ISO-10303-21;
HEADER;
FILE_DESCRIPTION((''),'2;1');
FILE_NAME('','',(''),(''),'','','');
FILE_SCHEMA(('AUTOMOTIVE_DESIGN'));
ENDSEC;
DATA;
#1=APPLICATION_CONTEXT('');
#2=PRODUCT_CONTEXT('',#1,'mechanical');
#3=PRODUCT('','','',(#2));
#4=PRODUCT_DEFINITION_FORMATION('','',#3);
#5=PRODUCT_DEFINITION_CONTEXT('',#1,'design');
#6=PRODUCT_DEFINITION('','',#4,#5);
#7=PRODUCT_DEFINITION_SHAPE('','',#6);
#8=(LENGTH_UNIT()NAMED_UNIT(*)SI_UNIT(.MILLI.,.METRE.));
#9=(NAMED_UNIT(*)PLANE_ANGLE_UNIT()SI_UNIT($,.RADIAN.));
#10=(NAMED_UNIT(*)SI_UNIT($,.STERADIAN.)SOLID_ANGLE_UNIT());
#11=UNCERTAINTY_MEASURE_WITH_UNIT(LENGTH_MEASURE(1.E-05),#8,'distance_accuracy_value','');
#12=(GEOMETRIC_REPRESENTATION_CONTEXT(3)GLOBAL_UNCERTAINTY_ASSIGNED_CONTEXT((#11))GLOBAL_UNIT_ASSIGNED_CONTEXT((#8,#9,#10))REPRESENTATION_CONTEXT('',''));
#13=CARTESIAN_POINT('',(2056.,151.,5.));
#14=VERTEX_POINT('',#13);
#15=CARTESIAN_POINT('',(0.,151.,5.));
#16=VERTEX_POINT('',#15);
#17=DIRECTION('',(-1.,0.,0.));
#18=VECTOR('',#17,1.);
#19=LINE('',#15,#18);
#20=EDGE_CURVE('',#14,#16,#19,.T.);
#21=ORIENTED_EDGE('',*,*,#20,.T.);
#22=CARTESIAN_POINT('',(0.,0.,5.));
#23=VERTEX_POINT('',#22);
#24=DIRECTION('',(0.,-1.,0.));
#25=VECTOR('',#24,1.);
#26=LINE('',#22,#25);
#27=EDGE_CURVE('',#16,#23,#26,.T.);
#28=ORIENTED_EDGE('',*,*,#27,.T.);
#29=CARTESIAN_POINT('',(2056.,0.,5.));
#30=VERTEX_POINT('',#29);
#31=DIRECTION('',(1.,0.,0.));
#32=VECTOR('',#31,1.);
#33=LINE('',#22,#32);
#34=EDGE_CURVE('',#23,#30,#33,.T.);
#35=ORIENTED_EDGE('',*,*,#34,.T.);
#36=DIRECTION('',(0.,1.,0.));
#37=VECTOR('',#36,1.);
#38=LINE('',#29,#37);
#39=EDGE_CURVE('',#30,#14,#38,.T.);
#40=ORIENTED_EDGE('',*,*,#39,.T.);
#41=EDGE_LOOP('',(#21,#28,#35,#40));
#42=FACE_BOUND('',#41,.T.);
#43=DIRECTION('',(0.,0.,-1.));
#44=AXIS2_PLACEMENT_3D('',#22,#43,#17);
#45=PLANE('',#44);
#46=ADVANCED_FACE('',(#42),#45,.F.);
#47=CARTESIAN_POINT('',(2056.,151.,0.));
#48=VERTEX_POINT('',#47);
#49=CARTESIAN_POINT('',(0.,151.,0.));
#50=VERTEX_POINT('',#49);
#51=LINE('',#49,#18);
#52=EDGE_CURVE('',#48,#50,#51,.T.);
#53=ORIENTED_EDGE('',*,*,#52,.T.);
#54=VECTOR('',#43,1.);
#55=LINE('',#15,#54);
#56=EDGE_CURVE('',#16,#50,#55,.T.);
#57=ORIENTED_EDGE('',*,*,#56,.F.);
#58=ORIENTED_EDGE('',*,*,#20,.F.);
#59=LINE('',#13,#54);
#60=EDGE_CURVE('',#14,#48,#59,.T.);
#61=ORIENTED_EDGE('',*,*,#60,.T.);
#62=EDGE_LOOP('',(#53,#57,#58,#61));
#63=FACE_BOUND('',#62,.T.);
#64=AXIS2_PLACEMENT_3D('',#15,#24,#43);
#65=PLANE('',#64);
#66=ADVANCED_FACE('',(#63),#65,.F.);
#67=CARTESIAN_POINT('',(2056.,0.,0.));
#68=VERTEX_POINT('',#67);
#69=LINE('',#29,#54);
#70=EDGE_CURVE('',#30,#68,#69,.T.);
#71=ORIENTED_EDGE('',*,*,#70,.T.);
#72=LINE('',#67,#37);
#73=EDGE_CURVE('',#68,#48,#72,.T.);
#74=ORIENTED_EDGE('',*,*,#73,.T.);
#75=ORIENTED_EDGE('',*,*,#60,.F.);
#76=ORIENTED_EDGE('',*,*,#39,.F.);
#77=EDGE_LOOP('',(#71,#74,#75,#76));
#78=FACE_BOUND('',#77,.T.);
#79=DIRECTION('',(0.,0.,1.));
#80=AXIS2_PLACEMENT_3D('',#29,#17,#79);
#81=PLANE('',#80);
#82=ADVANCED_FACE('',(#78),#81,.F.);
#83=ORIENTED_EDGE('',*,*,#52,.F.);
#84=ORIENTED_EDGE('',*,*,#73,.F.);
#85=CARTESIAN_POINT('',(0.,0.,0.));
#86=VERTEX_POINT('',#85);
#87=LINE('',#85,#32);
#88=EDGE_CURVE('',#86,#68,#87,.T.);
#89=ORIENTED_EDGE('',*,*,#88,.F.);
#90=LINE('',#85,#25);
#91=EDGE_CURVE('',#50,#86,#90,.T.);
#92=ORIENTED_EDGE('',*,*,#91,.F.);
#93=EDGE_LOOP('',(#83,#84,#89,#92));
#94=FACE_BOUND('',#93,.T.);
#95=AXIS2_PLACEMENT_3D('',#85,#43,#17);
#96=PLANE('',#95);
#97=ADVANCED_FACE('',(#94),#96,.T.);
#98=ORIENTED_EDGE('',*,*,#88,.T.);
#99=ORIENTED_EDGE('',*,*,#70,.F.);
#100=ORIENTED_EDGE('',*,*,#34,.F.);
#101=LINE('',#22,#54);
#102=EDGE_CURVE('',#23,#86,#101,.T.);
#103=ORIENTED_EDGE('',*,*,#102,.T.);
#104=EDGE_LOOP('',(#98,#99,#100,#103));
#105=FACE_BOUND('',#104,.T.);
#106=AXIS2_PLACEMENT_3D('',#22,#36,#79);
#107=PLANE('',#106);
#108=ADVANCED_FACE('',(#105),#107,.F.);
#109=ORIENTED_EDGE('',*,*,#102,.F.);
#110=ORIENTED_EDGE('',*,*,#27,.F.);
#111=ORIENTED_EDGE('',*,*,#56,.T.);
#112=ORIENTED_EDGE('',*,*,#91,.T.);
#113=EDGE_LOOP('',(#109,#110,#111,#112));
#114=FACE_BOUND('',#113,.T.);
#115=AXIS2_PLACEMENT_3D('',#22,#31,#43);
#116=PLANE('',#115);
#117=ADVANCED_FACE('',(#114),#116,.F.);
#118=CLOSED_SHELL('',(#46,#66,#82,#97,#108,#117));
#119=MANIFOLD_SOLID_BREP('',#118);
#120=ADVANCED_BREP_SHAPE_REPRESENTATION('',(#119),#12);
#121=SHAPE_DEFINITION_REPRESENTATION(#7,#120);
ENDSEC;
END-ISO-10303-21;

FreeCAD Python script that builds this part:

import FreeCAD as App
import Part
import Sketcher
from FreeCAD import Vector
Q = App.Units.Quantity


def add_polygon(sketch, points):
    """Adds a closed chain of lines whose ends are joined by coincident constraints."""
    first, n = sketch.GeometryCount, len(points)
    for a, b in zip(points, points[1:] + points[:1]):
        sketch.addGeometry(Part.LineSegment(App.Vector(*a, 0), App.Vector(*b, 0)), False)
    for i in range(n):
        sketch.addConstraint(Sketcher.Constraint("Coincident", first + i, 2, first + (i + 1) % n, 1))

doc = App.newDocument("Part")
body = doc.addObject("PartDesign::Body", "Body")

# Sketch on XY plane
sketch1 = body.newObject("Sketcher::SketchObject", "Sketch")
sketch1.AttachmentSupport = (doc.getObject("XY_Plane"), [""])
sketch1.MapMode = "FlatFace"
add_polygon(sketch1, [(0, 151), (0, 0), (2056, 0), (2056, 151)])  # lines 0-3
sketch1.addConstraint([
    Sketcher.Constraint("Vertical", 0),
    Sketcher.Constraint("Horizontal", 1),
    Sketcher.Constraint("Vertical", 2),
    Sketcher.Constraint("Horizontal", 3),
    Sketcher.Constraint("Coincident", 0, 2, -1, 1),
    Sketcher.Constraint("DistanceX", 1, 1, 1, 2, Q("2056 mm")),
    Sketcher.Constraint("DistanceY", 0, 2, 0, 1, Q("151 mm")),
])
pad1 = body.newObject("PartDesign::Pad", "Pad")
pad1.Profile = sketch1
pad1.Length = 5

doc.recompute()
